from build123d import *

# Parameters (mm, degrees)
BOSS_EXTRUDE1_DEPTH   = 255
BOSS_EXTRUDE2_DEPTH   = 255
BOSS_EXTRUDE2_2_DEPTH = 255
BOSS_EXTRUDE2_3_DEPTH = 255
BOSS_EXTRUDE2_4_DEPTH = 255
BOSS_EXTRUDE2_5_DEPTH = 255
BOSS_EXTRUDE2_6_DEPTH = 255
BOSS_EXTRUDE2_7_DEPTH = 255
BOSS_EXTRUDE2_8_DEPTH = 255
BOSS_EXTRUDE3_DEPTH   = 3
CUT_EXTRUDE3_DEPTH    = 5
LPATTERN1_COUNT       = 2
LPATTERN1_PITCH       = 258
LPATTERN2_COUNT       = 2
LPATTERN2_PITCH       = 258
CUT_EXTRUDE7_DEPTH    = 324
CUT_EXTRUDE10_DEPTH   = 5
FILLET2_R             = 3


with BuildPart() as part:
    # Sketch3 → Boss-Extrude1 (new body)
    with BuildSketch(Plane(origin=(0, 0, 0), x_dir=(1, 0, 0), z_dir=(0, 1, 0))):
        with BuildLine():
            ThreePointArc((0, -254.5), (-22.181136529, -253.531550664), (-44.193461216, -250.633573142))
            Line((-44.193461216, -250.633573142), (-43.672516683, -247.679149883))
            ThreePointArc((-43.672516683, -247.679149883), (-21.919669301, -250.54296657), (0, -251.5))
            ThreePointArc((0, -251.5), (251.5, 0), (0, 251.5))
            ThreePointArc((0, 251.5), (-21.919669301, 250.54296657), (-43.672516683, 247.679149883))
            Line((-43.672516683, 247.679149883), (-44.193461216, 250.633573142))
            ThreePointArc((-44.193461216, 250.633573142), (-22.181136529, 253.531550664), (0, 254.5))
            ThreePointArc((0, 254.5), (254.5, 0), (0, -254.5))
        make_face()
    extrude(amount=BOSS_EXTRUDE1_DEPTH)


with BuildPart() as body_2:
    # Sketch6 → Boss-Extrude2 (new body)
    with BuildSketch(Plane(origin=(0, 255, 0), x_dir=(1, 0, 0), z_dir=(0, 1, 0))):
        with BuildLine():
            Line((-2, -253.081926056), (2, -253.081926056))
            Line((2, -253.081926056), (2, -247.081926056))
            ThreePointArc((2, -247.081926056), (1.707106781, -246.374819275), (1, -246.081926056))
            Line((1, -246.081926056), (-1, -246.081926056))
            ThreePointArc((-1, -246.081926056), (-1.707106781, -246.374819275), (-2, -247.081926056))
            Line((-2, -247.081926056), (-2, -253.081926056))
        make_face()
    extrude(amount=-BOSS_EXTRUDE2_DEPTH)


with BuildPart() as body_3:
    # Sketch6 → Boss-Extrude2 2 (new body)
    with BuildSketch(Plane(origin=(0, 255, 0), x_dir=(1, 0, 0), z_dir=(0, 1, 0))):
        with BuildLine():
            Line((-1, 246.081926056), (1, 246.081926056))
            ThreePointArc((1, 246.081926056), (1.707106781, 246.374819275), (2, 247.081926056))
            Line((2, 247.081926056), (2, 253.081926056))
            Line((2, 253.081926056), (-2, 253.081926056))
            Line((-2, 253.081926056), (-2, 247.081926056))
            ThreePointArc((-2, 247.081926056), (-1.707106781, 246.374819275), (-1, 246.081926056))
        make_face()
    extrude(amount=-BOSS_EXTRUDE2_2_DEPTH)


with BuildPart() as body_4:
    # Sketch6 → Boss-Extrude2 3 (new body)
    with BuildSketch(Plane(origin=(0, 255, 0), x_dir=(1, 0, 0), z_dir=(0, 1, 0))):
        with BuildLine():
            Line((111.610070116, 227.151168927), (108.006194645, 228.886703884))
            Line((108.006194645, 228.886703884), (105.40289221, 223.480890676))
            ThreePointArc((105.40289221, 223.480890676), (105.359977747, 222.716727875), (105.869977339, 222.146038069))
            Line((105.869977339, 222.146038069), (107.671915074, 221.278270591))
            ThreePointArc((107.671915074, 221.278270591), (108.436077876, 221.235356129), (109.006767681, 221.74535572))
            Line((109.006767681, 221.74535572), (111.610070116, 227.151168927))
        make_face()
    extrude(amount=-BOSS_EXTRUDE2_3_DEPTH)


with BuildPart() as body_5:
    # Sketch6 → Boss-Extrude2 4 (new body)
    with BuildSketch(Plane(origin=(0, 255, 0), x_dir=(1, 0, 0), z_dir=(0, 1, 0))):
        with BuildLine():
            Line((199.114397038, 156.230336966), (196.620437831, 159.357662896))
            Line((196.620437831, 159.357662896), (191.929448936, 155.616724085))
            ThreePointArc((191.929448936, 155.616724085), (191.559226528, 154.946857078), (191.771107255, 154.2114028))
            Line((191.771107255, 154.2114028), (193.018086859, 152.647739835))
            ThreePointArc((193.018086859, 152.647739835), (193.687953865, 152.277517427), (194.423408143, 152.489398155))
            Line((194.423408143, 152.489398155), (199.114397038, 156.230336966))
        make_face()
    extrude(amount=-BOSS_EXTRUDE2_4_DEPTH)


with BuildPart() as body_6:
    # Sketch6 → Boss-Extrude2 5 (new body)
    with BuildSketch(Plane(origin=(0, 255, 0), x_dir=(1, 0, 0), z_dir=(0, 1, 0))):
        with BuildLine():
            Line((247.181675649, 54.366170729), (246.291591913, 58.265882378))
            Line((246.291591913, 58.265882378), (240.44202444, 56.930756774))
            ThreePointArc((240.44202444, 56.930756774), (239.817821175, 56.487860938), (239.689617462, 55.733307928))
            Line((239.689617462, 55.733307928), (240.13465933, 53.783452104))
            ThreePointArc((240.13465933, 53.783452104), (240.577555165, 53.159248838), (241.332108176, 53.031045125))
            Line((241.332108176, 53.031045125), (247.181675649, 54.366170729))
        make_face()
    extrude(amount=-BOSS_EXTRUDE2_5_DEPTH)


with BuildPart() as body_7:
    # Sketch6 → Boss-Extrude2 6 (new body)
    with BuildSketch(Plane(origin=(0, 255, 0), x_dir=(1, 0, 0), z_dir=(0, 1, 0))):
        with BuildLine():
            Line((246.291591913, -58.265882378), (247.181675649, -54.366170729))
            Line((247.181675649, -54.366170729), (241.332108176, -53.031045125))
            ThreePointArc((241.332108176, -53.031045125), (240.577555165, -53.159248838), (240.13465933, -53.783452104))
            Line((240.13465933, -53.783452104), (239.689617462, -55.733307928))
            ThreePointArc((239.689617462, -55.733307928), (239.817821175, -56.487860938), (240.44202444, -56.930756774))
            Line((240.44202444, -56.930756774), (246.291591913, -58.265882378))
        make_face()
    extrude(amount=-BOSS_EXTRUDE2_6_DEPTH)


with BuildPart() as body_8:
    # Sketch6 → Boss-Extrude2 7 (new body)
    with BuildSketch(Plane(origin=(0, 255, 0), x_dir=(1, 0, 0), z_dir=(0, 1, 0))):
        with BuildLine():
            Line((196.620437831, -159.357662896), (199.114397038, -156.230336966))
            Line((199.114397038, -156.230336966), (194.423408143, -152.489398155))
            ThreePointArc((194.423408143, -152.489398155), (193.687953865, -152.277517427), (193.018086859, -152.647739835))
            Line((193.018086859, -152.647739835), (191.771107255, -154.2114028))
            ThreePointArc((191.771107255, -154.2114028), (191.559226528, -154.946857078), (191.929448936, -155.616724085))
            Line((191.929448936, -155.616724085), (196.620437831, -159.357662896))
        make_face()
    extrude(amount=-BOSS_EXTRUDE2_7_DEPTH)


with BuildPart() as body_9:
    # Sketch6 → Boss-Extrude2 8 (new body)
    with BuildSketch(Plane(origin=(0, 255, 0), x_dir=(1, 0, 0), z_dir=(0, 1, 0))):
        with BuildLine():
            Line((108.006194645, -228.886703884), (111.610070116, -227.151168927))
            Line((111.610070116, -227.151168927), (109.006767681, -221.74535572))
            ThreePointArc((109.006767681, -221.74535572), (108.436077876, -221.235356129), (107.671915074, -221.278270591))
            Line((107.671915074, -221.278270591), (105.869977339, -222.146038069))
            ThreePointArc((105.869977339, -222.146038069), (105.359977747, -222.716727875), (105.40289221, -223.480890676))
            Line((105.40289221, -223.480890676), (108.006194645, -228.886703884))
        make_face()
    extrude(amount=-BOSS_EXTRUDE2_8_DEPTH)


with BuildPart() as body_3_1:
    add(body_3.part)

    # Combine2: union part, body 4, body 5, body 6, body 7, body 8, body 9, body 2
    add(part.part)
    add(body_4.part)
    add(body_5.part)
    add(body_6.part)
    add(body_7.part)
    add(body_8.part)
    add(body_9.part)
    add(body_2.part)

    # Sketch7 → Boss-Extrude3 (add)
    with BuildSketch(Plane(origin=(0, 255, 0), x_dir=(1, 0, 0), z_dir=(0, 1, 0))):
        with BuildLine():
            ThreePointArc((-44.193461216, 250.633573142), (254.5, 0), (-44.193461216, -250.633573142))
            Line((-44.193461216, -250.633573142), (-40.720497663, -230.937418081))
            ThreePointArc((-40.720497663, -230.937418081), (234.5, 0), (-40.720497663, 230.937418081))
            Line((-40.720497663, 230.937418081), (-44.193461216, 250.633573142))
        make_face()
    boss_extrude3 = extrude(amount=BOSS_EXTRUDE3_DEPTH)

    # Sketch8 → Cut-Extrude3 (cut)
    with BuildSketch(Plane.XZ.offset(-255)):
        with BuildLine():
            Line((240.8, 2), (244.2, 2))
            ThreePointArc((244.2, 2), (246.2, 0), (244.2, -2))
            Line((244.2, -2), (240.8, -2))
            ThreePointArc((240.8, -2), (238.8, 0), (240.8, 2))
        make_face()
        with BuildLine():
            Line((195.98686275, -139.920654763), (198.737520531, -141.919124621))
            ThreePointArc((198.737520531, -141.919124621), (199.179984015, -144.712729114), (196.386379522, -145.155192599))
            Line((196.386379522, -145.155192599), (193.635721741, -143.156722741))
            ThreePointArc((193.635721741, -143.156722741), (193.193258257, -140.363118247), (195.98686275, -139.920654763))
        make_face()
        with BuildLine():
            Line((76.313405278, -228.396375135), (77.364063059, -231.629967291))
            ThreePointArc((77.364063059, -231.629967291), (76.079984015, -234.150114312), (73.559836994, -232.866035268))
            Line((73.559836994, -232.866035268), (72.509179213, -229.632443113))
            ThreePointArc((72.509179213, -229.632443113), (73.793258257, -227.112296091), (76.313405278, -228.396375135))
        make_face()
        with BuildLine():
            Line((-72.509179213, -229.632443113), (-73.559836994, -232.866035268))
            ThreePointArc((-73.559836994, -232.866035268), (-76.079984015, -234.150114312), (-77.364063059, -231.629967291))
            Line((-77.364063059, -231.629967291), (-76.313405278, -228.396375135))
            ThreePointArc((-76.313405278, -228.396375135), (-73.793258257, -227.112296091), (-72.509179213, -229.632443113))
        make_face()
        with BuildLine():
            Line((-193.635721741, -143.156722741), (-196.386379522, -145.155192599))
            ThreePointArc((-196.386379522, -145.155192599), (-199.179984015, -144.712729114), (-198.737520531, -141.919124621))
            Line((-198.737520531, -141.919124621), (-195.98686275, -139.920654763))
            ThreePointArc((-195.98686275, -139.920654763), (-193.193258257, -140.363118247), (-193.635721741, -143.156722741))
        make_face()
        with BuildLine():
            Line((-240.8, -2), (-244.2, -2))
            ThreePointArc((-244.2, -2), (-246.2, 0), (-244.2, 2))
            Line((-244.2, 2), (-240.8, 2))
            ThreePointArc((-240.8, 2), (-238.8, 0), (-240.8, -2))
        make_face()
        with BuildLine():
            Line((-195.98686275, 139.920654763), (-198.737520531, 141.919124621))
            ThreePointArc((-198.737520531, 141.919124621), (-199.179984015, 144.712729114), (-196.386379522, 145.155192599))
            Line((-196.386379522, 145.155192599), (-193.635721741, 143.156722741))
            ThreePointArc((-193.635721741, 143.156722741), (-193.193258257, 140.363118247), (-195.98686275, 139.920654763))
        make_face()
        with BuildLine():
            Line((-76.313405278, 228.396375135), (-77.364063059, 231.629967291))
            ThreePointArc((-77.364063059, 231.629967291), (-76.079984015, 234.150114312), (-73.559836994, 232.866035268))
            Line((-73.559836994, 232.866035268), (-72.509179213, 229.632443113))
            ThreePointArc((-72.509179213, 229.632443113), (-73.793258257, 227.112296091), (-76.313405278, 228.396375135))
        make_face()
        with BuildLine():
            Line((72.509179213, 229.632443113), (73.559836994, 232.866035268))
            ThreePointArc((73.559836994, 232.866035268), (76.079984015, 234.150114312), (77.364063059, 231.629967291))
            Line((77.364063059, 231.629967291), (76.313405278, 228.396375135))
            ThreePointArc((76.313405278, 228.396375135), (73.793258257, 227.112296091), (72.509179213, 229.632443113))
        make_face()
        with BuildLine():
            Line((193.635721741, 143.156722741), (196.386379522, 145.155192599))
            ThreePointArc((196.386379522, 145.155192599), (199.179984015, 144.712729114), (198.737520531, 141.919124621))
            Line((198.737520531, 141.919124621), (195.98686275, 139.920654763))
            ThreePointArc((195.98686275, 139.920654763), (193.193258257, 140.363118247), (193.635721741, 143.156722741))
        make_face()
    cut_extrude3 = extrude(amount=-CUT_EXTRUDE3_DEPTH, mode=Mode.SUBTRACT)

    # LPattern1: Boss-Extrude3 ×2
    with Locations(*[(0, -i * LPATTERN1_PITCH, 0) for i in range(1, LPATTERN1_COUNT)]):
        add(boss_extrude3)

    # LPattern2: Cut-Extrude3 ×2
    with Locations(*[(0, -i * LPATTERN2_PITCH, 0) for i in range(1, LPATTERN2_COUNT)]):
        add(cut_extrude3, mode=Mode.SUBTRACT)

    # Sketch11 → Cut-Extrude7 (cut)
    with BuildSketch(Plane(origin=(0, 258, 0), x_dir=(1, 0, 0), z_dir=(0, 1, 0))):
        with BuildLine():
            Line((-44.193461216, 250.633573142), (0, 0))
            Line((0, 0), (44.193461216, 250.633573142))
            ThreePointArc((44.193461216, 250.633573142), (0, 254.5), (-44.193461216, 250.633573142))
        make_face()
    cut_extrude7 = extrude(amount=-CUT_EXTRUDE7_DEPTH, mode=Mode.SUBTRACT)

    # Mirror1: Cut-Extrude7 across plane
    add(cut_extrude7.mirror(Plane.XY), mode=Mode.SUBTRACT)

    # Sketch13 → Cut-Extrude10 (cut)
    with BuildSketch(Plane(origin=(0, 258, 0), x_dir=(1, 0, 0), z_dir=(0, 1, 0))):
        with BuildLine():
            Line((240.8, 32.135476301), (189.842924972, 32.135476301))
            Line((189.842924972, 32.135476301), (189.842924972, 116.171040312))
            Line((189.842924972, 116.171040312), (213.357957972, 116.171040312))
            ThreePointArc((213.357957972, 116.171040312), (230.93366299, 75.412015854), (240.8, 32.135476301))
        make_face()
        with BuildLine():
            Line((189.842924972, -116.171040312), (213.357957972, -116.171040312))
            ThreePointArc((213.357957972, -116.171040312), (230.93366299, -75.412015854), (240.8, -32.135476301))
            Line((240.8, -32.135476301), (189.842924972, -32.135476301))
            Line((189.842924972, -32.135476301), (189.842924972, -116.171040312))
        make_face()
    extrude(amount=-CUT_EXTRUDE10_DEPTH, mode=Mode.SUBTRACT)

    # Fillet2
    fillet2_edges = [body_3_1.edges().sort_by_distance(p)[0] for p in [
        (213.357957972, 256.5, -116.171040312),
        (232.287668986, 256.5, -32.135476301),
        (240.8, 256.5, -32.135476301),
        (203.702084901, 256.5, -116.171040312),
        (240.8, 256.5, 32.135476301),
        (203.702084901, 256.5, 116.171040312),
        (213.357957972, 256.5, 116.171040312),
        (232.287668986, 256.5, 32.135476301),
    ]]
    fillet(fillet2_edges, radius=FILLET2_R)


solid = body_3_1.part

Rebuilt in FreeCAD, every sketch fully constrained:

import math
import FreeCAD as App
import Part
import Sketcher
from FreeCAD import Vector
Q = App.Units.Quantity


def edges_at(feature, points):
    """Names of the edges that pass closest to the given points."""
    edges = feature.Shape.Edges
    near = lambda p: min(range(len(edges)), key=lambda i: edges[i].distToShape(Part.Vertex(*p))[0])
    return sorted({f"Edge{near(p) + 1}" for p in points})

doc = App.newDocument("Part")
params = doc.addObject("Spreadsheet::Sheet", "Params")
for row, (alias, value) in enumerate([
    ("sketch1_radius", "254.5 mm"),
    ("sketch1_radius2", "251.5 mm"),
    ("pad1_length", "255 mm"),
    ("sketch2_radius", "1 mm"),
    ("sketch2_width", "4 mm"),
    ("sketch2_height", "6 mm"),
    ("pad2_length", "255 mm"),
    ("sketch3_radius", "1 mm"),
    ("sketch3_width", "2 mm"),
    ("sketch3_height", "6 mm"),
    ("pad3_length", "255 mm"),
    ("sketch4_radius", "1 mm"),
    ("sketch4_length", "4 mm"),
    ("sketch4_length2", "6 mm"),
    ("pad4_length", "255 mm"),
    ("sketch5_radius", "1 mm"),
    ("sketch5_length", "4 mm"),
    ("sketch5_length2", "6 mm"),
    ("pad5_length", "255 mm"),
    ("sketch6_radius", "1 mm"),
    ("sketch6_length", "4 mm"),
    ("sketch6_length2", "6 mm"),
    ("pad6_length", "255 mm"),
    ("sketch7_radius", "1 mm"),
    ("sketch7_length", "4 mm"),
    ("sketch7_length2", "6 mm"),
    ("pad7_length", "255 mm"),
    ("sketch8_radius", "1 mm"),
    ("sketch8_length", "4 mm"),
    ("sketch8_length2", "6 mm"),
    ("pad8_length", "255 mm"),
    ("sketch9_radius", "1 mm"),
    ("sketch9_length", "4 mm"),
    ("sketch9_length2", "6 mm"),
    ("pad9_length", "255 mm"),
    ("sketch10_radius", "254.5 mm"),
    ("sketch10_radius2", "234.5 mm"),
    ("pad10_length", "3 mm"),
    ("sketch11_radius", "2 mm"),
    ("sketch11_width", "3.4 mm"),
    ("sketch11_length", "3.4 mm"),
    ("pocket1_length", "5 mm"),
    ("linearpattern_pitch", "258 mm"),
    ("linearpattern2_pitch", "258 mm"),
    ("sketch12_radius", "254.5 mm"),
    ("pocket2_length", "324 mm"),
    ("pocket3_length", "5 mm"),
    ("fillet_radius", "3 mm"),
], start=1):
    params.set(f"A{row}", alias)
    params.set(f"B{row}", "=" + value)
    params.setAlias(f"B{row}", alias)

body = doc.addObject("PartDesign::Body", "Body")

sketch1 = body.newObject("Sketcher::SketchObject", "Sketch")
sketch1.AttachmentSupport = (doc.getObject("XZ_Plane"), [""])
sketch1.MapMode = "FlatFace"
sketch1.addGeometry(Part.ArcOfCircle(Part.Circle(Vector(0, 0, 0), Vector(0, 0, 1), 254.5), math.radians(90), math.radians(100)), False)
sketch1.addGeometry(Part.ArcOfCircle(Part.Circle(Vector(0, 0, 0), Vector(0, 0, 1), 254.5), math.radians(-90), math.radians(90)), False)
sketch1.addGeometry(Part.ArcOfCircle(Part.Circle(Vector(0, 0, 0), Vector(0, 0, 1), 254.5), math.radians(-100), math.radians(-90)), False)
sketch1.addGeometry(Part.LineSegment(Vector(-44.2, -250.6, 0), Vector(-43.7, -247.7, 0)), False)
sketch1.addGeometry(Part.ArcOfCircle(Part.Circle(Vector(0, 0, 0), Vector(0, 0, 1), 251.5), math.radians(-100), math.radians(-90)), False)
sketch1.addGeometry(Part.ArcOfCircle(Part.Circle(Vector(0, 0, 0), Vector(0, 0, 1), 251.5), math.radians(-90), math.radians(90)), False)
sketch1.addGeometry(Part.ArcOfCircle(Part.Circle(Vector(0, 0, 0), Vector(0, 0, 1), 251.5), math.radians(90), math.radians(100)), False)
sketch1.addGeometry(Part.LineSegment(Vector(-43.7, 247.7, 0), Vector(-44.2, 250.6, 0)), False)
sketch1.addConstraint(Sketcher.Constraint("Tangent", 0, 1, 1, 2))
sketch1.addConstraint(Sketcher.Constraint("Tangent", 1, 1, 2, 2))
sketch1.addConstraint(Sketcher.Constraint("Coincident", 2, 1, 3, 1))
sketch1.addConstraint(Sketcher.Constraint("Coincident", 3, 2, 4, 1))
sketch1.addConstraint(Sketcher.Constraint("Tangent", 4, 2, 5, 1))
sketch1.addConstraint(Sketcher.Constraint("Tangent", 5, 2, 6, 1))
sketch1.addConstraint(Sketcher.Constraint("Coincident", 6, 2, 7, 1))
sketch1.addConstraint(Sketcher.Constraint("Coincident", 7, 2, 0, 2))
sketch1.addConstraint(Sketcher.Constraint("Coincident", 0, 3, -1, 1))
sketch1.addConstraint(Sketcher.Constraint("Coincident", 4, 3, -1, 1))
sketch1.addConstraint(Sketcher.Constraint("Equal", 0, 1))
sketch1.addConstraint(Sketcher.Constraint("Equal", 1, 2))
sketch1.addConstraint(Sketcher.Constraint("Equal", 4, 5))
sketch1.addConstraint(Sketcher.Constraint("Equal", 5, 6))
sketch1.addConstraint(Sketcher.Constraint("PointOnObject", 0, 1, -2))
sketch1.addConstraint(Sketcher.Constraint("PointOnObject", 1, 1, -2))
sketch1.addConstraint(Sketcher.Constraint("PointOnObject", 4, 2, -2))
sketch1.addConstraint(Sketcher.Constraint("PointOnObject", 5, 2, -2))
sketch1.addConstraint(Sketcher.Constraint("Vertical", 3, 2, 6, 2))
sketch1.addConstraint(Sketcher.Constraint("Vertical", 2, 1, 7, 2))
sketch1.addConstraint(Sketcher.Constraint("Radius", 0, 254.5))
sketch1.addConstraint(Sketcher.Constraint("Radius", 4, 251.5))
sketch1.addConstraint(Sketcher.Constraint("Angle", 3, Q("80 deg")))
sketch1.addConstraint(Sketcher.Constraint("DistanceY", 3, 2, -1, 1, 247.67915))
sketch1.setExpression("Constraints[20]", "Params.sketch1_radius")
sketch1.setExpression("Constraints[21]", "Params.sketch1_radius2")
pad1 = body.newObject("PartDesign::Pad", "Pad")
pad1.Profile = sketch1
pad1.setExpression("Length", "Params.pad1_length")
pad1.Reversed = True
body2 = doc.addObject("PartDesign::Body", "Body001")

sketch2 = body2.newObject("Sketcher::SketchObject", "Sketch001")
sketch2.AttachmentSupport = (doc.getObject("XZ_Plane001"), [""])
sketch2.MapMode = "FlatFace"
sketch2.AttachmentOffset = App.Placement(Vector(0, 0, -255), App.Rotation())
sketch2.addGeometry(Part.LineSegment(Vector(-2, 253.1, 0), Vector(2, 253.1, 0)), False)
sketch2.addGeometry(Part.LineSegment(Vector(2, 253.1, 0), Vector(2, 247.1, 0)), False)
sketch2.addGeometry(Part.ArcOfCircle(Part.Circle(Vector(1, 247.1, 0), Vector(0, 0, 1), 1), math.radians(-90), math.radians(0)), False)
sketch2.addGeometry(Part.LineSegment(Vector(1, 246.1, 0), Vector(-1, 246.1, 0)), False)
sketch2.addGeometry(Part.ArcOfCircle(Part.Circle(Vector(-1, 247.1, 0), Vector(0, 0, 1), 1), math.radians(-180), math.radians(-90)), False)
sketch2.addGeometry(Part.LineSegment(Vector(-2, 247.1, 0), Vector(-2, 253.1, 0)), False)
sketch2.addConstraint(Sketcher.Constraint("Coincident", 0, 2, 1, 1))
sketch2.addConstraint(Sketcher.Constraint("Tangent", 1, 2, 2, 2))
sketch2.addConstraint(Sketcher.Constraint("Tangent", 2, 1, 3, 1))
sketch2.addConstraint(Sketcher.Constraint("Tangent", 3, 2, 4, 2))
sketch2.addConstraint(Sketcher.Constraint("Tangent", 4, 1, 5, 1))
sketch2.addConstraint(Sketcher.Constraint("Coincident", 5, 2, 0, 1))
sketch2.addConstraint(Sketcher.Constraint("Horizontal", 0))
sketch2.addConstraint(Sketcher.Constraint("Vertical", 1))
sketch2.addConstraint(Sketcher.Constraint("Horizontal", 3))
sketch2.addConstraint(Sketcher.Constraint("Vertical", 5))
sketch2.addConstraint(Sketcher.Constraint("Equal", 2, 4))
sketch2.addConstraint(Sketcher.Constraint("Radius", 2, 1.0))
sketch2.addConstraint(Sketcher.Constraint("DistanceX", 0, 1, 0, 2, 4.0))
sketch2.addConstraint(Sketcher.Constraint("DistanceY", 1, 2, 1, 1, 6.0))
sketch2.addConstraint(Sketcher.Constraint("DistanceX", -1, 1, 2, 3, 1.0))
sketch2.addConstraint(Sketcher.Constraint("DistanceY", -1, 1, 2, 3, 247.081926))
sketch2.setExpression("Constraints[11]", "Params.sketch2_radius")
sketch2.setExpression("Constraints[12]", "Params.sketch2_width")
sketch2.setExpression("Constraints[13]", "Params.sketch2_height")
pad2 = body2.newObject("PartDesign::Pad", "Pad001")
pad2.Profile = sketch2
pad2.setExpression("Length", "Params.pad2_length")
body3 = doc.addObject("PartDesign::Body", "Body002")

sketch3 = body3.newObject("Sketcher::SketchObject", "Sketch002")
sketch3.AttachmentSupport = (doc.getObject("XZ_Plane002"), [""])
sketch3.MapMode = "FlatFace"
sketch3.AttachmentOffset = App.Placement(Vector(0, 0, -255), App.Rotation())
sketch3.addGeometry(Part.LineSegment(Vector(-1, -246.1, 0), Vector(1, -246.1, 0)), False)
sketch3.addGeometry(Part.ArcOfCircle(Part.Circle(Vector(1, -247.1, 0), Vector(0, 0, 1), 1), math.radians(0), math.radians(90)), False)
sketch3.addGeometry(Part.LineSegment(Vector(2, -247.1, 0), Vector(2, -253.1, 0)), False)
sketch3.addGeometry(Part.LineSegment(Vector(2, -253.1, 0), Vector(-2, -253.1, 0)), False)
sketch3.addGeometry(Part.LineSegment(Vector(-2, -253.1, 0), Vector(-2, -247.1, 0)), False)
sketch3.addGeometry(Part.ArcOfCircle(Part.Circle(Vector(-1, -247.1, 0), Vector(0, 0, 1), 1), math.radians(90), math.radians(180)), False)
sketch3.addConstraint(Sketcher.Constraint("Tangent", 0, 2, 1, 2))
sketch3.addConstraint(Sketcher.Constraint("Tangent", 1, 1, 2, 1))
sketch3.addConstraint(Sketcher.Constraint("Coincident", 2, 2, 3, 1))
sketch3.addConstraint(Sketcher.Constraint("Coincident", 3, 2, 4, 1))
sketch3.addConstraint(Sketcher.Constraint("Tangent", 4, 2, 5, 2))
sketch3.addConstraint(Sketcher.Constraint("Tangent", 5, 1, 0, 1))
sketch3.addConstraint(Sketcher.Constraint("Horizontal", 0))
sketch3.addConstraint(Sketcher.Constraint("Vertical", 2))
sketch3.addConstraint(Sketcher.Constraint("Horizontal", 3))
sketch3.addConstraint(Sketcher.Constraint("Vertical", 4))
sketch3.addConstraint(Sketcher.Constraint("Equal", 1, 5))
sketch3.addConstraint(Sketcher.Constraint("Radius", 1, 1.0))
sketch3.addConstraint(Sketcher.Constraint("DistanceX", 0, 1, 0, 2, 2.0))
sketch3.addConstraint(Sketcher.Constraint("DistanceY", 2, 2, 2, 1, 6.0))
sketch3.addConstraint(Sketcher.Constraint("DistanceX", -1, 1, 1, 3, 1.0))
sketch3.addConstraint(Sketcher.Constraint("DistanceY", 1, 3, -1, 1, 247.081926))
sketch3.setExpression("Constraints[11]", "Params.sketch3_radius")
sketch3.setExpression("Constraints[12]", "Params.sketch3_width")
sketch3.setExpression("Constraints[13]", "Params.sketch3_height")
pad3 = body3.newObject("PartDesign::Pad", "Pad002")
pad3.Profile = sketch3
pad3.setExpression("Length", "Params.pad3_length")
body4 = doc.addObject("PartDesign::Body", "Body003")

sketch4 = body4.newObject("Sketcher::SketchObject", "Sketch003")
sketch4.AttachmentSupport = (doc.getObject("XZ_Plane003"), [""])
sketch4.MapMode = "FlatFace"
sketch4.AttachmentOffset = App.Placement(Vector(0, 0, -255), App.Rotation())
sketch4.addGeometry(Part.LineSegment(Vector(111.6, -227.2, 0), Vector(108, -228.9, 0)), False)
sketch4.addGeometry(Part.LineSegment(Vector(108, -228.9, 0), Vector(105.4, -223.5, 0)), False)
sketch4.addGeometry(Part.ArcOfCircle(Part.Circle(Vector(106.3, -223, 0), Vector(0, 0, 1), 1), math.radians(116), math.radians(206)), False)
sketch4.addGeometry(Part.LineSegment(Vector(105.9, -222.1, 0), Vector(107.7, -221.3, 0)), False)
sketch4.addGeometry(Part.ArcOfCircle(Part.Circle(Vector(108.1, -222.2, 0), Vector(0, 0, 1), 1), math.radians(26), math.radians(116)), False)
sketch4.addGeometry(Part.LineSegment(Vector(109, -221.7, 0), Vector(111.6, -227.2, 0)), False)
sketch4.addConstraint(Sketcher.Constraint("Coincident", 0, 2, 1, 1))
sketch4.addConstraint(Sketcher.Constraint("Tangent", 1, 2, 2, 2))
sketch4.addConstraint(Sketcher.Constraint("Tangent", 2, 1, 3, 1))
sketch4.addConstraint(Sketcher.Constraint("Tangent", 3, 2, 4, 2))
sketch4.addConstraint(Sketcher.Constraint("Tangent", 4, 1, 5, 1))
sketch4.addConstraint(Sketcher.Constraint("Coincident", 5, 2, 0, 1))
sketch4.addConstraint(Sketcher.Constraint("Equal", 2, 4))
sketch4.addConstraint(Sketcher.Constraint("Perpendicular", 0, 1))
sketch4.addConstraint(Sketcher.Constraint("Perpendicular", 1, 3))
sketch4.addConstraint(Sketcher.Constraint("Perpendicular", 3, 5))
sketch4.addConstraint(Sketcher.Constraint("Radius", 2, 1.0))
sketch4.addConstraint(Sketcher.Constraint("Distance", 0, 4.0))
sketch4.addConstraint(Sketcher.Constraint("Distance", 1, 6.0))
sketch4.addConstraint(Sketcher.Constraint("DistanceX", -1, 1, 4, 3, 108.105799))
sketch4.addConstraint(Sketcher.Constraint("DistanceY", 4, 3, 2, 1, 0.033201))
sketch4.addConstraint(Sketcher.Constraint("DistanceY", 4, 3, -1, 1, 222.179239))
sketch4.setExpression("Constraints[10]", "Params.sketch4_radius")
sketch4.setExpression("Constraints[11]", "Params.sketch4_length")
sketch4.setExpression("Constraints[12]", "Params.sketch4_length2")
pad4 = body4.newObject("PartDesign::Pad", "Pad003")
pad4.Profile = sketch4
pad4.setExpression("Length", "Params.pad4_length")
body5 = doc.addObject("PartDesign::Body", "Body004")

sketch5 = body5.newObject("Sketcher::SketchObject", "Sketch004")
sketch5.AttachmentSupport = (doc.getObject("XZ_Plane004"), [""])
sketch5.MapMode = "FlatFace"
sketch5.AttachmentOffset = App.Placement(Vector(0, 0, -255), App.Rotation())
sketch5.addGeometry(Part.LineSegment(Vector(199.1, -156.2, 0), Vector(196.6, -159.4, 0)), False)
sketch5.addGeometry(Part.LineSegment(Vector(196.6, -159.4, 0), Vector(191.9, -155.6, 0)), False)
sketch5.addGeometry(Part.ArcOfCircle(Part.Circle(Vector(192.6, -154.8, 0), Vector(0, 0, 1), 1), math.radians(141), math.radians(231)), False)
sketch5.addGeometry(Part.LineSegment(Vector(191.8, -154.2, 0), Vector(193, -152.6, 0)), False)
sketch5.addGeometry(Part.ArcOfCircle(Part.Circle(Vector(193.8, -153.3, 0), Vector(0, 0, 1), 1), math.radians(51), math.radians(141)), False)
sketch5.addGeometry(Part.LineSegment(Vector(194.4, -152.5, 0), Vector(199.1, -156.2, 0)), False)
sketch5.addConstraint(Sketcher.Constraint("Coincident", 0, 2, 1, 1))
sketch5.addConstraint(Sketcher.Constraint("Tangent", 1, 2, 2, 2))
sketch5.addConstraint(Sketcher.Constraint("Tangent", 2, 1, 3, 1))
sketch5.addConstraint(Sketcher.Constraint("Tangent", 3, 2, 4, 2))
sketch5.addConstraint(Sketcher.Constraint("Tangent", 4, 1, 5, 1))
sketch5.addConstraint(Sketcher.Constraint("Coincident", 5, 2, 0, 1))
sketch5.addConstraint(Sketcher.Constraint("Equal", 2, 4))
sketch5.addConstraint(Sketcher.Constraint("Perpendicular", 0, 1))
sketch5.addConstraint(Sketcher.Constraint("Perpendicular", 1, 3))
sketch5.addConstraint(Sketcher.Constraint("Perpendicular", 3, 5))
sketch5.addConstraint(Sketcher.Constraint("Radius", 2, 1.0))
sketch5.addConstraint(Sketcher.Constraint("Distance", 0, 4.0))
sketch5.addConstraint(Sketcher.Constraint("Distance", 1, 6.0))
sketch5.addConstraint(Sketcher.Constraint("DistanceY", 4, 1, -1, 1, 152.489398))
sketch5.addConstraint(Sketcher.Constraint("DistanceX", 2, 3, 0, 2, 4.067499))
sketch5.addConstraint(Sketcher.Constraint("DistanceX", -1, 1, 2, 3, 192.552939))
sketch5.setExpression("Constraints[10]", "Params.sketch5_radius")
sketch5.setExpression("Constraints[11]", "Params.sketch5_length")
sketch5.setExpression("Constraints[12]", "Params.sketch5_length2")
pad5 = body5.newObject("PartDesign::Pad", "Pad004")
pad5.Profile = sketch5
pad5.setExpression("Length", "Params.pad5_length")
body6 = doc.addObject("PartDesign::Body", "Body005")

sketch6 = body6.newObject("Sketcher::SketchObject", "Sketch005")
sketch6.AttachmentSupport = (doc.getObject("XZ_Plane005"), [""])
sketch6.MapMode = "FlatFace"
sketch6.AttachmentOffset = App.Placement(Vector(0, 0, -255), App.Rotation())
sketch6.addGeometry(Part.LineSegment(Vector(247.2, -54.4, 0), Vector(246.3, -58.3, 0)), False)
sketch6.addGeometry(Part.LineSegment(Vector(246.3, -58.3, 0), Vector(240.4, -56.9, 0)), False)
sketch6.addGeometry(Part.ArcOfCircle(Part.Circle(Vector(240.7, -56, 0), Vector(0, 0, 1), 1), math.radians(167), math.radians(257)), False)
sketch6.addGeometry(Part.LineSegment(Vector(239.7, -55.7, 0), Vector(240.1, -53.8, 0)), False)
sketch6.addGeometry(Part.ArcOfCircle(Part.Circle(Vector(241.1, -54, 0), Vector(0, 0, 1), 1), math.radians(77), math.radians(167)), False)
sketch6.addGeometry(Part.LineSegment(Vector(241.3, -53, 0), Vector(247.2, -54.4, 0)), False)
sketch6.addConstraint(Sketcher.Constraint("Coincident", 0, 2, 1, 1))
sketch6.addConstraint(Sketcher.Constraint("Tangent", 1, 2, 2, 2))
sketch6.addConstraint(Sketcher.Constraint("Tangent", 2, 1, 3, 1))
sketch6.addConstraint(Sketcher.Constraint("Tangent", 3, 2, 4, 2))
sketch6.addConstraint(Sketcher.Constraint("Tangent", 4, 1, 5, 1))
sketch6.addConstraint(Sketcher.Constraint("Coincident", 5, 2, 0, 1))
sketch6.addConstraint(Sketcher.Constraint("Equal", 2, 4))
sketch6.addConstraint(Sketcher.Constraint("Perpendicular", 0, 1))
sketch6.addConstraint(Sketcher.Constraint("Perpendicular", 1, 3))
sketch6.addConstraint(Sketcher.Constraint("Perpendicular", 3, 5))
sketch6.addConstraint(Sketcher.Constraint("Radius", 2, 1.0))
sketch6.addConstraint(Sketcher.Constraint("Distance", 0, 4.0))
sketch6.addConstraint(Sketcher.Constraint("Distance", 1, 6.0))
sketch6.addConstraint(Sketcher.Constraint("DistanceY", 2, 3, -1, 1, 55.955829))
sketch6.addConstraint(Sketcher.Constraint("DistanceX", -1, 1, 0, 2, 246.291592))
sketch6.addConstraint(Sketcher.Constraint("DistanceX", -1, 1, 3, 2, 240.134659))
sketch6.setExpression("Constraints[10]", "Params.sketch6_radius")
sketch6.setExpression("Constraints[11]", "Params.sketch6_length")
sketch6.setExpression("Constraints[12]", "Params.sketch6_length2")
pad6 = body6.newObject("PartDesign::Pad", "Pad005")
pad6.Profile = sketch6
pad6.setExpression("Length", "Params.pad6_length")
body7 = doc.addObject("PartDesign::Body", "Body006")

sketch7 = body7.newObject("Sketcher::SketchObject", "Sketch006")
sketch7.AttachmentSupport = (doc.getObject("XZ_Plane006"), [""])
sketch7.MapMode = "FlatFace"
sketch7.AttachmentOffset = App.Placement(Vector(0, 0, -255), App.Rotation())
sketch7.addGeometry(Part.LineSegment(Vector(246.3, 58.3, 0), Vector(247.2, 54.4, 0)), False)
sketch7.addGeometry(Part.LineSegment(Vector(247.2, 54.4, 0), Vector(241.3, 53, 0)), False)
sketch7.addGeometry(Part.ArcOfCircle(Part.Circle(Vector(241.1, 54, 0), Vector(0, 0, 1), 1), math.radians(-167), math.radians(-77)), False)
sketch7.addGeometry(Part.LineSegment(Vector(240.1, 53.8, 0), Vector(239.7, 55.7, 0)), False)
sketch7.addGeometry(Part.ArcOfCircle(Part.Circle(Vector(240.7, 56, 0), Vector(0, 0, 1), 1), math.radians(103), math.radians(193)), False)
sketch7.addGeometry(Part.LineSegment(Vector(240.4, 56.9, 0), Vector(246.3, 58.3, 0)), False)
sketch7.addConstraint(Sketcher.Constraint("Coincident", 0, 2, 1, 1))
sketch7.addConstraint(Sketcher.Constraint("Tangent", 1, 2, 2, 2))
sketch7.addConstraint(Sketcher.Constraint("Tangent", 2, 1, 3, 1))
sketch7.addConstraint(Sketcher.Constraint("Tangent", 3, 2, 4, 2))
sketch7.addConstraint(Sketcher.Constraint("Tangent", 4, 1, 5, 1))
sketch7.addConstraint(Sketcher.Constraint("Coincident", 5, 2, 0, 1))
sketch7.addConstraint(Sketcher.Constraint("Equal", 2, 4))
sketch7.addConstraint(Sketcher.Constraint("Perpendicular", 0, 1))
sketch7.addConstraint(Sketcher.Constraint("Perpendicular", 1, 3))
sketch7.addConstraint(Sketcher.Constraint("Perpendicular", 3, 5))
sketch7.addConstraint(Sketcher.Constraint("Radius", 2, 1.0))
sketch7.addConstraint(Sketcher.Constraint("Distance", 0, 4.0))
sketch7.addConstraint(Sketcher.Constraint("Distance", 1, 6.0))
sketch7.addConstraint(Sketcher.Constraint("DistanceY", -1, 1, 4, 3, 55.955829))
sketch7.addConstraint(Sketcher.Constraint("DistanceY", -1, 1, 0, 2, 54.366171))
sketch7.addConstraint(Sketcher.Constraint("DistanceX", -1, 1, 1, 2, 241.332108))
sketch7.setExpression("Constraints[10]", "Params.sketch7_radius")
sketch7.setExpression("Constraints[11]", "Params.sketch7_length")
sketch7.setExpression("Constraints[12]", "Params.sketch7_length2")
pad7 = body7.newObject("PartDesign::Pad", "Pad006")
pad7.Profile = sketch7
pad7.setExpression("Length", "Params.pad7_length")
body8 = doc.addObject("PartDesign::Body", "Body007")

sketch8 = body8.newObject("Sketcher::SketchObject", "Sketch007")
sketch8.AttachmentSupport = (doc.getObject("XZ_Plane007"), [""])
sketch8.MapMode = "FlatFace"
sketch8.AttachmentOffset = App.Placement(Vector(0, 0, -255), App.Rotation())
sketch8.addGeometry(Part.LineSegment(Vector(196.6, 159.4, 0), Vector(199.1, 156.2, 0)), False)
sketch8.addGeometry(Part.LineSegment(Vector(199.1, 156.2, 0), Vector(194.4, 152.5, 0)), False)
sketch8.addGeometry(Part.ArcOfCircle(Part.Circle(Vector(193.8, 153.3, 0), Vector(0, 0, 1), 1), math.radians(-141), math.radians(-51)), False)
sketch8.addGeometry(Part.LineSegment(Vector(193, 152.6, 0), Vector(191.8, 154.2, 0)), False)
sketch8.addGeometry(Part.ArcOfCircle(Part.Circle(Vector(192.6, 154.8, 0), Vector(0, 0, 1), 1), math.radians(129), math.radians(219)), False)
sketch8.addGeometry(Part.LineSegment(Vector(191.9, 155.6, 0), Vector(196.6, 159.4, 0)), False)
sketch8.addConstraint(Sketcher.Constraint("Coincident", 0, 2, 1, 1))
sketch8.addConstraint(Sketcher.Constraint("Tangent", 1, 2, 2, 2))
sketch8.addConstraint(Sketcher.Constraint("Tangent", 2, 1, 3, 1))
sketch8.addConstraint(Sketcher.Constraint("Tangent", 3, 2, 4, 2))
sketch8.addConstraint(Sketcher.Constraint("Tangent", 4, 1, 5, 1))
sketch8.addConstraint(Sketcher.Constraint("Coincident", 5, 2, 0, 1))
sketch8.addConstraint(Sketcher.Constraint("Equal", 2, 4))
sketch8.addConstraint(Sketcher.Constraint("Perpendicular", 0, 1))
sketch8.addConstraint(Sketcher.Constraint("Perpendicular", 1, 3))
sketch8.addConstraint(Sketcher.Constraint("Perpendicular", 3, 5))
sketch8.addConstraint(Sketcher.Constraint("Radius", 2, 1.0))
sketch8.addConstraint(Sketcher.Constraint("Distance", 0, 4.0))
sketch8.addConstraint(Sketcher.Constraint("Distance", 1, 6.0))
sketch8.addConstraint(Sketcher.Constraint("DistanceY", -1, 1, 1, 2, 152.489398))
sketch8.addConstraint(Sketcher.Constraint("DistanceX", 3, 2, 1, 2, 2.652301))
sketch8.addConstraint(Sketcher.Constraint("DistanceX", -1, 1, 2, 3, 193.799918))
sketch8.setExpression("Constraints[10]", "Params.sketch8_radius")
sketch8.setExpression("Constraints[11]", "Params.sketch8_length")
sketch8.setExpression("Constraints[12]", "Params.sketch8_length2")
pad8 = body8.newObject("PartDesign::Pad", "Pad007")
pad8.Profile = sketch8
pad8.setExpression("Length", "Params.pad8_length")
body9 = doc.addObject("PartDesign::Body", "Body008")

sketch9 = body9.newObject("Sketcher::SketchObject", "Sketch008")
sketch9.AttachmentSupport = (doc.getObject("XZ_Plane008"), [""])
sketch9.MapMode = "FlatFace"
sketch9.AttachmentOffset = App.Placement(Vector(0, 0, -255), App.Rotation())
sketch9.addGeometry(Part.LineSegment(Vector(108, 228.9, 0), Vector(111.6, 227.2, 0)), False)
sketch9.addGeometry(Part.LineSegment(Vector(111.6, 227.2, 0), Vector(109, 221.7, 0)), False)
sketch9.addGeometry(Part.ArcOfCircle(Part.Circle(Vector(108.1, 222.2, 0), Vector(0, 0, 1), 1), math.radians(-116), math.radians(-26)), False)
sketch9.addGeometry(Part.LineSegment(Vector(107.7, 221.3, 0), Vector(105.9, 222.1, 0)), False)
sketch9.addGeometry(Part.ArcOfCircle(Part.Circle(Vector(106.3, 223, 0), Vector(0, 0, 1), 1), math.radians(154), math.radians(244)), False)
sketch9.addGeometry(Part.LineSegment(Vector(105.4, 223.5, 0), Vector(108, 228.9, 0)), False)
sketch9.addConstraint(Sketcher.Constraint("Coincident", 0, 2, 1, 1))
sketch9.addConstraint(Sketcher.Constraint("Tangent", 1, 2, 2, 2))
sketch9.addConstraint(Sketcher.Constraint("Tangent", 2, 1, 3, 1))
sketch9.addConstraint(Sketcher.Constraint("Tangent", 3, 2, 4, 2))
sketch9.addConstraint(Sketcher.Constraint("Tangent", 4, 1, 5, 1))
sketch9.addConstraint(Sketcher.Constraint("Coincident", 5, 2, 0, 1))
sketch9.addConstraint(Sketcher.Constraint("Equal", 2, 4))
sketch9.addConstraint(Sketcher.Constraint("Perpendicular", 0, 1))
sketch9.addConstraint(Sketcher.Constraint("Perpendicular", 1, 3))
sketch9.addConstraint(Sketcher.Constraint("Perpendicular", 3, 5))
sketch9.addConstraint(Sketcher.Constraint("Radius", 2, 1.0))
sketch9.addConstraint(Sketcher.Constraint("Distance", 0, 4.0))
sketch9.addConstraint(Sketcher.Constraint("Distance", 1, 6.0))
sketch9.addConstraint(Sketcher.Constraint("DistanceX", -1, 1, 2, 3, 108.105799))
sketch9.addConstraint(Sketcher.Constraint("DistanceY", 2, 1, 0, 2, 5.872898))
sketch9.addConstraint(Sketcher.Constraint("DistanceY", -1, 1, 2, 3, 222.179239))
sketch9.setExpression("Constraints[10]", "Params.sketch9_radius")
sketch9.setExpression("Constraints[11]", "Params.sketch9_length")
sketch9.setExpression("Constraints[12]", "Params.sketch9_length2")
pad9 = body9.newObject("PartDesign::Pad", "Pad008")
pad9.Profile = sketch9
pad9.setExpression("Length", "Params.pad9_length")
doc.recompute()

boolean = body3.newObject("PartDesign::Boolean", "Boolean")
boolean.Type = "Fuse"
boolean.addObjects([body])
doc.recompute()

boolean2 = body3.newObject("PartDesign::Boolean", "Boolean001")
boolean2.Type = "Fuse"
boolean2.addObjects([body4])
doc.recompute()

boolean3 = body3.newObject("PartDesign::Boolean", "Boolean002")
boolean3.Type = "Fuse"
boolean3.addObjects([body5])
doc.recompute()

boolean4 = body3.newObject("PartDesign::Boolean", "Boolean003")
boolean4.Type = "Fuse"
boolean4.addObjects([body6])
doc.recompute()

boolean5 = body3.newObject("PartDesign::Boolean", "Boolean004")
boolean5.Type = "Fuse"
boolean5.addObjects([body7])
doc.recompute()

boolean6 = body3.newObject("PartDesign::Boolean", "Boolean005")
boolean6.Type = "Fuse"
boolean6.addObjects([body8])
doc.recompute()

boolean7 = body3.newObject("PartDesign::Boolean", "Boolean006")
boolean7.Type = "Fuse"
boolean7.addObjects([body9])
doc.recompute()

boolean8 = body3.newObject("PartDesign::Boolean", "Boolean007")
boolean8.Type = "Fuse"
boolean8.addObjects([body2])

sketch10 = body3.newObject("Sketcher::SketchObject", "Sketch009")
sketch10.AttachmentSupport = (doc.getObject("XZ_Plane002"), [""])
sketch10.MapMode = "FlatFace"
sketch10.AttachmentOffset = App.Placement(Vector(0, 0, -255), App.Rotation())
sketch10.addGeometry(Part.ArcOfCircle(Part.Circle(Vector(0, 0, 0), Vector(0, 0, 1), 254), math.radians(-100), math.radians(100)), False)
sketch10.addGeometry(Part.LineSegment(Vector(-44, -251, 0), Vector(-41, -231, 0)), False)
sketch10.addGeometry(Part.ArcOfCircle(Part.Circle(Vector(0, 0, 0), Vector(0, 0, 1), 234), math.radians(-100), math.radians(100)), False)
sketch10.addGeometry(Part.LineSegment(Vector(-41, 231, 0), Vector(-44, 251, 0)), False)
sketch10.addConstraint(Sketcher.Constraint("Coincident", 0, 1, 1, 1))
sketch10.addConstraint(Sketcher.Constraint("Coincident", 1, 2, 2, 1))
sketch10.addConstraint(Sketcher.Constraint("Coincident", 2, 2, 3, 1))
sketch10.addConstraint(Sketcher.Constraint("Coincident", 3, 2, 0, 2))
sketch10.addConstraint(Sketcher.Constraint("Coincident", 0, 3, -1, 1))
sketch10.addConstraint(Sketcher.Constraint("Coincident", 2, 3, -1, 1))
sketch10.addConstraint(Sketcher.Constraint("Vertical", 1, 2, 2, 2))
sketch10.addConstraint(Sketcher.Constraint("Vertical", 0, 1, 3, 2))
sketch10.addConstraint(Sketcher.Constraint("Radius", 0, 254.5))
sketch10.addConstraint(Sketcher.Constraint("Radius", 2, 234.5))
sketch10.addConstraint(Sketcher.Constraint("Angle", 1, Q("80 deg")))
sketch10.addConstraint(Sketcher.Constraint("DistanceY", 1, 2, -1, 1, 230.937418))
sketch10.setExpression("Constraints[8]", "Params.sketch10_radius")
sketch10.setExpression("Constraints[9]", "Params.sketch10_radius2")
pad10 = body3.newObject("PartDesign::Pad", "Pad009")
pad10.Profile = sketch10
pad10.setExpression("Length", "Params.pad10_length")
pad10.Reversed = True

sketch11 = body3.newObject("Sketcher::SketchObject", "Sketch010")
sketch11.AttachmentSupport = (doc.getObject("XZ_Plane002"), [""])
sketch11.MapMode = "FlatFace"
sketch11.AttachmentOffset = App.Placement(Vector(0, 0, -255), App.Rotation())
sketch11.addGeometry(Part.LineSegment(Vector(244.2, 2, 0), Vector(240.8, 2, 0)), False)
sketch11.addGeometry(Part.ArcOfCircle(Part.Circle(Vector(240.8, 0, 0), Vector(0, 0, 1), 2), math.radians(90), math.radians(270)), False)
sketch11.addGeometry(Part.LineSegment(Vector(240.8, -2, 0), Vector(244.2, -2, 0)), False)
sketch11.addGeometry(Part.ArcOfCircle(Part.Circle(Vector(244.2, 0, 0), Vector(0, 0, 1), 2), math.radians(-90), math.radians(90)), False)
sketch11.addGeometry(Part.LineSegment(Vector(198.7, -141.9, 0), Vector(196, -139.9, 0)), False)
sketch11.addGeometry(Part.ArcOfCircle(Part.Circle(Vector(194.8, -141.5, 0), Vector(0, 0, 1), 2), math.radians(54), math.radians(234)), False)
sketch11.addGeometry(Part.LineSegment(Vector(193.6, -143.2, 0), Vector(196.4, -145.2, 0)), False)
sketch11.addGeometry(Part.ArcOfCircle(Part.Circle(Vector(197.6, -143.5, 0), Vector(0, 0, 1), 2), math.radians(-126), math.radians(54)), False)
sketch11.addGeometry(Part.LineSegment(Vector(77.4, -231.6, 0), Vector(76.3, -228.4, 0)), False)
sketch11.addGeometry(Part.ArcOfCircle(Part.Circle(Vector(74.4, -229, 0), Vector(0, 0, 1), 2), math.radians(18), math.radians(198)), False)
sketch11.addGeometry(Part.LineSegment(Vector(72.5, -229.6, 0), Vector(73.6, -232.9, 0)), False)
sketch11.addGeometry(Part.ArcOfCircle(Part.Circle(Vector(75.5, -232.2, 0), Vector(0, 0, 1), 2), math.radians(-162), math.radians(18)), False)
sketch11.addGeometry(Part.LineSegment(Vector(-73.6, -232.9, 0), Vector(-72.5, -229.6, 0)), False)
sketch11.addGeometry(Part.ArcOfCircle(Part.Circle(Vector(-74.4, -229, 0), Vector(0, 0, 1), 2), math.radians(-18), math.radians(162)), False)
sketch11.addGeometry(Part.LineSegment(Vector(-76.3, -228.4, 0), Vector(-77.4, -231.6, 0)), False)
sketch11.addGeometry(Part.ArcOfCircle(Part.Circle(Vector(-75.5, -232.2, 0), Vector(0, 0, 1), 2), math.radians(162), math.radians(342)), False)
sketch11.addGeometry(Part.LineSegment(Vector(-196.4, -145.2, 0), Vector(-193.6, -143.2, 0)), False)
sketch11.addGeometry(Part.ArcOfCircle(Part.Circle(Vector(-194.8, -141.5, 0), Vector(0, 0, 1), 2), math.radians(-54), math.radians(126)), False)
sketch11.addGeometry(Part.LineSegment(Vector(-196, -139.9, 0), Vector(-198.7, -141.9, 0)), False)
sketch11.addGeometry(Part.ArcOfCircle(Part.Circle(Vector(-197.6, -143.5, 0), Vector(0, 0, 1), 2), math.radians(126), math.radians(306)), False)
sketch11.addGeometry(Part.LineSegment(Vector(-244.2, -2, 0), Vector(-240.8, -2, 0)), False)
sketch11.addGeometry(Part.ArcOfCircle(Part.Circle(Vector(-240.8, 0, 0), Vector(0, 0, 1), 2), math.radians(-90), math.radians(90)), False)
sketch11.addGeometry(Part.LineSegment(Vector(-240.8, 2, 0), Vector(-244.2, 2, 0)), False)
sketch11.addGeometry(Part.ArcOfCircle(Part.Circle(Vector(-244.2, 0, 0), Vector(0, 0, 1), 2), math.radians(90), math.radians(270)), False)
sketch11.addGeometry(Part.LineSegment(Vector(-198.7, 141.9, 0), Vector(-196, 139.9, 0)), False)
sketch11.addGeometry(Part.ArcOfCircle(Part.Circle(Vector(-194.8, 141.5, 0), Vector(0, 0, 1), 2), math.radians(-126), math.radians(54)), False)
sketch11.addGeometry(Part.LineSegment(Vector(-193.6, 143.2, 0), Vector(-196.4, 145.2, 0)), False)
sketch11.addGeometry(Part.ArcOfCircle(Part.Circle(Vector(-197.6, 143.5, 0), Vector(0, 0, 1), 2), math.radians(54), math.radians(234)), False)
sketch11.addGeometry(Part.LineSegment(Vector(-77.4, 231.6, 0), Vector(-76.3, 228.4, 0)), False)
sketch11.addGeometry(Part.ArcOfCircle(Part.Circle(Vector(-74.4, 229, 0), Vector(0, 0, 1), 2), math.radians(-162), math.radians(18)), False)
sketch11.addGeometry(Part.LineSegment(Vector(-72.5, 229.6, 0), Vector(-73.6, 232.9, 0)), False)
sketch11.addGeometry(Part.ArcOfCircle(Part.Circle(Vector(-75.5, 232.2, 0), Vector(0, 0, 1), 2), math.radians(18), math.radians(198)), False)
sketch11.addGeometry(Part.LineSegment(Vector(73.6, 232.9, 0), Vector(72.5, 229.6, 0)), False)
sketch11.addGeometry(Part.ArcOfCircle(Part.Circle(Vector(74.4, 229, 0), Vector(0, 0, 1), 2), math.radians(162), math.radians(342)), False)
sketch11.addGeometry(Part.LineSegment(Vector(76.3, 228.4, 0), Vector(77.4, 231.6, 0)), False)
sketch11.addGeometry(Part.ArcOfCircle(Part.Circle(Vector(75.5, 232.2, 0), Vector(0, 0, 1), 2), math.radians(-18), math.radians(162)), False)
sketch11.addGeometry(Part.LineSegment(Vector(196.4, 145.2, 0), Vector(193.6, 143.2, 0)), False)
sketch11.addGeometry(Part.ArcOfCircle(Part.Circle(Vector(194.8, 141.5, 0), Vector(0, 0, 1), 2), math.radians(126), math.radians(306)), False)
sketch11.addGeometry(Part.LineSegment(Vector(196, 139.9, 0), Vector(198.7, 141.9, 0)), False)
sketch11.addGeometry(Part.ArcOfCircle(Part.Circle(Vector(197.6, 143.5, 0), Vector(0, 0, 1), 2), math.radians(-54), math.radians(126)), False)
sketch11.addConstraint(Sketcher.Constraint("Tangent", 0, 2, 1, 1))
sketch11.addConstraint(Sketcher.Constraint("Tangent", 1, 2, 2, 1))
sketch11.addConstraint(Sketcher.Constraint("Tangent", 2, 2, 3, 1))
sketch11.addConstraint(Sketcher.Constraint("Tangent", 3, 2, 0, 1))
sketch11.addConstraint(Sketcher.Constraint("Tangent", 4, 2, 5, 1))
sketch11.addConstraint(Sketcher.Constraint("Tangent", 5, 2, 6, 1))
sketch11.addConstraint(Sketcher.Constraint("Tangent", 6, 2, 7, 1))
sketch11.addConstraint(Sketcher.Constraint("Tangent", 7, 2, 4, 1))
sketch11.addConstraint(Sketcher.Constraint("Tangent", 8, 2, 9, 1))
sketch11.addConstraint(Sketcher.Constraint("Tangent", 9, 2, 10, 1))
sketch11.addConstraint(Sketcher.Constraint("Tangent", 10, 2, 11, 1))
sketch11.addConstraint(Sketcher.Constraint("Tangent", 11, 2, 8, 1))
sketch11.addConstraint(Sketcher.Constraint("Tangent", 12, 2, 13, 1))
sketch11.addConstraint(Sketcher.Constraint("Tangent", 13, 2, 14, 1))
sketch11.addConstraint(Sketcher.Constraint("Tangent", 14, 2, 15, 1))
sketch11.addConstraint(Sketcher.Constraint("Tangent", 15, 2, 12, 1))
sketch11.addConstraint(Sketcher.Constraint("Tangent", 16, 2, 17, 1))
sketch11.addConstraint(Sketcher.Constraint("Tangent", 17, 2, 18, 1))
sketch11.addConstraint(Sketcher.Constraint("Tangent", 18, 2, 19, 1))
sketch11.addConstraint(Sketcher.Constraint("Tangent", 19, 2, 16, 1))
sketch11.addConstraint(Sketcher.Constraint("Tangent", 20, 2, 21, 1))
sketch11.addConstraint(Sketcher.Constraint("Tangent", 21, 2, 22, 1))
sketch11.addConstraint(Sketcher.Constraint("Tangent", 22, 2, 23, 1))
sketch11.addConstraint(Sketcher.Constraint("Tangent", 23, 2, 20, 1))
sketch11.addConstraint(Sketcher.Constraint("Tangent", 24, 2, 25, 1))
sketch11.addConstraint(Sketcher.Constraint("Tangent", 25, 2, 26, 1))
sketch11.addConstraint(Sketcher.Constraint("Tangent", 26, 2, 27, 1))
sketch11.addConstraint(Sketcher.Constraint("Tangent", 27, 2, 24, 1))
sketch11.addConstraint(Sketcher.Constraint("Tangent", 28, 2, 29, 1))
sketch11.addConstraint(Sketcher.Constraint("Tangent", 29, 2, 30, 1))
sketch11.addConstraint(Sketcher.Constraint("Tangent", 30, 2, 31, 1))
sketch11.addConstraint(Sketcher.Constraint("Tangent", 31, 2, 28, 1))
sketch11.addConstraint(Sketcher.Constraint("Tangent", 32, 2, 33, 1))
sketch11.addConstraint(Sketcher.Constraint("Tangent", 33, 2, 34, 1))
sketch11.addConstraint(Sketcher.Constraint("Tangent", 34, 2, 35, 1))
sketch11.addConstraint(Sketcher.Constraint("Tangent", 35, 2, 32, 1))
sketch11.addConstraint(Sketcher.Constraint("Tangent", 36, 2, 37, 1))
sketch11.addConstraint(Sketcher.Constraint("Tangent", 37, 2, 38, 1))
sketch11.addConstraint(Sketcher.Constraint("Tangent", 38, 2, 39, 1))
sketch11.addConstraint(Sketcher.Constraint("Tangent", 39, 2, 36, 1))
sketch11.addConstraint(Sketcher.Constraint("Horizontal", 0))
sketch11.addConstraint(Sketcher.Constraint("Horizontal", 2))
sketch11.addConstraint(Sketcher.Constraint("Horizontal", 20))
sketch11.addConstraint(Sketcher.Constraint("Horizontal", 22))
sketch11.addConstraint(Sketcher.Constraint("Equal", 3, 5))
sketch11.addConstraint(Sketcher.Constraint("Equal", 5, 7))
sketch11.addConstraint(Sketcher.Constraint("Equal", 7, 9))
sketch11.addConstraint(Sketcher.Constraint("Equal", 9, 11))
sketch11.addConstraint(Sketcher.Constraint("Equal", 11, 13))
sketch11.addConstraint(Sketcher.Constraint("Equal", 13, 15))
sketch11.addConstraint(Sketcher.Constraint("Equal", 15, 17))
sketch11.addConstraint(Sketcher.Constraint("Equal", 17, 19))
sketch11.addConstraint(Sketcher.Constraint("Equal", 19, 21))
sketch11.addConstraint(Sketcher.Constraint("Equal", 23, 25))
sketch11.addConstraint(Sketcher.Constraint("Equal", 25, 27))
sketch11.addConstraint(Sketcher.Constraint("Equal", 27, 29))
sketch11.addConstraint(Sketcher.Constraint("Equal", 29, 31))
sketch11.addConstraint(Sketcher.Constraint("Equal", 31, 33))
sketch11.addConstraint(Sketcher.Constraint("Equal", 33, 35))
sketch11.addConstraint(Sketcher.Constraint("Equal", 35, 37))
sketch11.addConstraint(Sketcher.Constraint("Equal", 37, 39))
sketch11.addConstraint(Sketcher.Constraint("Symmetric", 1, 3, 21, 3, -1, 1))
sketch11.addConstraint(Sketcher.Constraint("Symmetric", 5, 3, 25, 3, -1, 1))
sketch11.addConstraint(Sketcher.Constraint("Symmetric", 7, 3, 27, 3, -1, 1))
sketch11.addConstraint(Sketcher.Constraint("Symmetric", 9, 3, 29, 3, -1, 1))
sketch11.addConstraint(Sketcher.Constraint("Symmetric", 11, 3, 31, 3, -1, 1))
sketch11.addConstraint(Sketcher.Constraint("Symmetric", 13, 3, 33, 3, -1, 1))
sketch11.addConstraint(Sketcher.Constraint("Symmetric", 15, 3, 35, 3, -1, 1))
sketch11.addConstraint(Sketcher.Constraint("Symmetric", 17, 3, 37, 3, -1, 1))
sketch11.addConstraint(Sketcher.Constraint("Symmetric", 19, 3, 39, 3, -1, 1))
sketch11.addConstraint(Sketcher.Constraint("Symmetric", 9, 3, 13, 3, -2))
sketch11.addConstraint(Sketcher.Constraint("Symmetric", 11, 3, 15, 3, -2))
sketch11.addConstraint(Sketcher.Constraint("Symmetric", 5, 3, 17, 3, -2))
sketch11.addConstraint(Sketcher.Constraint("Symmetric", 7, 3, 19, 3, -2))
sketch11.addConstraint(Sketcher.Constraint("Symmetric", 3, 3, 23, 3, -2))
sketch11.addConstraint(Sketcher.Constraint("Equal", 6, 8))
sketch11.addConstraint(Sketcher.Constraint("Radius", 1, 2.0))
sketch11.addConstraint(Sketcher.Constraint("Angle", 4, Q("144 deg")))
sketch11.addConstraint(Sketcher.Constraint("Angle", 8, Q("108 deg")))
sketch11.addConstraint(Sketcher.Constraint("DistanceX", 0, 2, 0, 1, 3.4))
sketch11.addConstraint(Sketcher.Constraint("Distance", 4, 3.4))
sketch11.addConstraint(Sketcher.Constraint("DistanceX", -1, 1, 1, 3, 240.8))
sketch11.addConstraint(Sketcher.Constraint("DistanceX", 9, 3, 5, 3, 120.4))
sketch11.addConstraint(Sketcher.Constraint("DistanceY", 11, 3, -1, 1, 232.248001))
sketch11.addConstraint(Sketcher.Constraint("DistanceX", 15, 3, 11, 3, 150.9239))
sketch11.addConstraint(Sketcher.Constraint("DistanceY", 5, 3, -1, 1, 141.538689))
sketch11.setExpression("Constraints[76]", "Params.sketch11_radius")
sketch11.setExpression("Constraints[79]", "Params.sketch11_width")
sketch11.setExpression("Constraints[80]", "Params.sketch11_length")
pocket1 = body3.newObject("PartDesign::Pocket", "Pocket")
pocket1.Profile = sketch11
pocket1.setExpression("Length", "Params.pocket1_length")
doc.recompute()

linearpattern = body3.newObject("PartDesign::LinearPattern", "LinearPattern")
linearpattern.Originals = [pad10]
linearpattern.Direction = (doc.getObject("Y_Axis002"), [""])
linearpattern.Mode = "offset"
linearpattern.setExpression("Offset", "Params.linearpattern_pitch")
linearpattern.Occurrences = 2
linearpattern.Reversed = True
body3.Tip = linearpattern
doc.recompute()

linearpattern2 = body3.newObject("PartDesign::LinearPattern", "LinearPattern001")
linearpattern2.Originals = [pocket1]
linearpattern2.Direction = (doc.getObject("Y_Axis002"), [""])
linearpattern2.Mode = "offset"
linearpattern2.setExpression("Offset", "Params.linearpattern2_pitch")
linearpattern2.Occurrences = 2
linearpattern2.Reversed = True
body3.Tip = linearpattern2

sketch12 = body3.newObject("Sketcher::SketchObject", "Sketch011")
sketch12.AttachmentSupport = (doc.getObject("XZ_Plane002"), [""])
sketch12.MapMode = "FlatFace"
sketch12.AttachmentOffset = App.Placement(Vector(0, 0, -258), App.Rotation())
sketch12.addGeometry(Part.LineSegment(Vector(-44, -251, 0), Vector(0, 0, 0)), False)
sketch12.addGeometry(Part.LineSegment(Vector(0, 0, 0), Vector(44, -251, 0)), False)
sketch12.addGeometry(Part.ArcOfCircle(Part.Circle(Vector(0, 0, 0), Vector(0, 0, 1), 255), math.radians(-100), math.radians(-80)), False)
sketch12.addConstraint(Sketcher.Constraint("Coincident", 0, 2, 1, 1))
sketch12.addConstraint(Sketcher.Constraint("Coincident", 1, 2, 2, 2))
sketch12.addConstraint(Sketcher.Constraint("Coincident", 2, 1, 0, 1))
sketch12.addConstraint(Sketcher.Constraint("Coincident", 2, 3, -1, 1))
sketch12.addConstraint(Sketcher.Constraint("Coincident", 0, 2, -1, 1))
sketch12.addConstraint(Sketcher.Constraint("Horizontal", 1, 2, 2, 1))
sketch12.addConstraint(Sketcher.Constraint("Radius", 2, 254.5))
sketch12.addConstraint(Sketcher.Constraint("Angle", 0, Q("80 deg")))
sketch12.setExpression("Constraints[6]", "Params.sketch12_radius")
pocket2 = body3.newObject("PartDesign::Pocket", "Pocket001")
pocket2.Profile = sketch12
pocket2.setExpression("Length", "Params.pocket2_length")
pocket2.Reversed = True
doc.recompute()

mirrored = body3.newObject("PartDesign::Mirrored", "Mirrored")
mirrored.Originals = [pocket2]
mirrored.MirrorPlane = (doc.getObject("XY_Plane002"), [""])
body3.Tip = mirrored

sketch13 = body3.newObject("Sketcher::SketchObject", "Sketch012")
sketch13.AttachmentSupport = (doc.getObject("XZ_Plane002"), [""])
sketch13.MapMode = "FlatFace"
sketch13.AttachmentOffset = App.Placement(Vector(0, 0, -258), App.Rotation())
sketch13.addGeometry(Part.LineSegment(Vector(190, -32, 0), Vector(241, -32, 0)), False)
sketch13.addGeometry(Part.ArcOfCircle(Part.Circle(Vector(0, 0, 0), Vector(0, 0, 1), 243), math.radians(-29), math.radians(-8)), False)
sketch13.addGeometry(Part.LineSegment(Vector(213, -116, 0), Vector(190, -116, 0)), False)
sketch13.addGeometry(Part.LineSegment(Vector(190, -116, 0), Vector(190, -32, 0)), False)
sketch13.addGeometry(Part.LineSegment(Vector(190, 116, 0), Vector(213, 116, 0)), False)
sketch13.addGeometry(Part.ArcOfCircle(Part.Circle(Vector(0, 0, 0), Vector(0, 0, 1), 243), math.radians(8), math.radians(29)), False)
sketch13.addGeometry(Part.LineSegment(Vector(241, 32, 0), Vector(190, 32, 0)), False)
sketch13.addGeometry(Part.LineSegment(Vector(190, 32, 0), Vector(190, 116, 0)), False)
sketch13.addConstraint(Sketcher.Constraint("Coincident", 0, 2, 1, 2))
sketch13.addConstraint(Sketcher.Constraint("Coincident", 1, 1, 2, 1))
sketch13.addConstraint(Sketcher.Constraint("Coincident", 2, 2, 3, 1))
sketch13.addConstraint(Sketcher.Constraint("Coincident", 3, 2, 0, 1))
sketch13.addConstraint(Sketcher.Constraint("Coincident", 4, 2, 5, 2))
sketch13.addConstraint(Sketcher.Constraint("Coincident", 5, 1, 6, 1))
sketch13.addConstraint(Sketcher.Constraint("Coincident", 6, 2, 7, 1))
sketch13.addConstraint(Sketcher.Constraint("Coincident", 7, 2, 4, 1))
sketch13.addConstraint(Sketcher.Constraint("Horizontal", 0))
sketch13.addConstraint(Sketcher.Constraint("Horizontal", 2))
sketch13.addConstraint(Sketcher.Constraint("Vertical", 3))
sketch13.addConstraint(Sketcher.Constraint("Horizontal", 4))
sketch13.addConstraint(Sketcher.Constraint("Horizontal", 6))
sketch13.addConstraint(Sketcher.Constraint("Vertical", 7))
sketch13.addConstraint(Sketcher.Constraint("Coincident", 1, 3, -1, 1))
sketch13.addConstraint(Sketcher.Constraint("Coincident", 5, 3, -1, 1))
sketch13.addConstraint(Sketcher.Constraint("Equal", 1, 5))
sketch13.addConstraint(Sketcher.Constraint("Symmetric", 3, 2, 6, 2, -1))
sketch13.addConstraint(Sketcher.Constraint("Vertical", 1, 1, 4, 2))
sketch13.addConstraint(Sketcher.Constraint("DistanceX", -1, 1, 0, 2, 240.8))
sketch13.addConstraint(Sketcher.Constraint("Radius", 1, 242.934824))
sketch13.addConstraint(Sketcher.Constraint("DistanceX", 0, 1, 0, 2, 50.957075))
sketch13.addConstraint(Sketcher.Constraint("DistanceX", 2, 2, 2, 1, 23.515033))
pocket3 = body3.newObject("PartDesign::Pocket", "Pocket002")
pocket3.Profile = sketch13
pocket3.setExpression("Length", "Params.pocket3_length")
pocket3.Reversed = True
doc.recompute()

fillet = body3.newObject("PartDesign::Fillet", "Fillet")
fillet.Base = (pocket3, edges_at(pocket3, [
    (213.358, 256.5, -116.171),
    (232.288, 256.5, -32.135),
    (240.8, 256.5, -32.135),
    (203.702, 256.5, -116.171),
    (240.8, 256.5, 32.135),
    (203.702, 256.5, 116.171),
    (213.358, 256.5, 116.171),
    (232.288, 256.5, 32.135),
]))
fillet.setExpression("Radius", "Params.fillet_radius")

doc.recompute()
